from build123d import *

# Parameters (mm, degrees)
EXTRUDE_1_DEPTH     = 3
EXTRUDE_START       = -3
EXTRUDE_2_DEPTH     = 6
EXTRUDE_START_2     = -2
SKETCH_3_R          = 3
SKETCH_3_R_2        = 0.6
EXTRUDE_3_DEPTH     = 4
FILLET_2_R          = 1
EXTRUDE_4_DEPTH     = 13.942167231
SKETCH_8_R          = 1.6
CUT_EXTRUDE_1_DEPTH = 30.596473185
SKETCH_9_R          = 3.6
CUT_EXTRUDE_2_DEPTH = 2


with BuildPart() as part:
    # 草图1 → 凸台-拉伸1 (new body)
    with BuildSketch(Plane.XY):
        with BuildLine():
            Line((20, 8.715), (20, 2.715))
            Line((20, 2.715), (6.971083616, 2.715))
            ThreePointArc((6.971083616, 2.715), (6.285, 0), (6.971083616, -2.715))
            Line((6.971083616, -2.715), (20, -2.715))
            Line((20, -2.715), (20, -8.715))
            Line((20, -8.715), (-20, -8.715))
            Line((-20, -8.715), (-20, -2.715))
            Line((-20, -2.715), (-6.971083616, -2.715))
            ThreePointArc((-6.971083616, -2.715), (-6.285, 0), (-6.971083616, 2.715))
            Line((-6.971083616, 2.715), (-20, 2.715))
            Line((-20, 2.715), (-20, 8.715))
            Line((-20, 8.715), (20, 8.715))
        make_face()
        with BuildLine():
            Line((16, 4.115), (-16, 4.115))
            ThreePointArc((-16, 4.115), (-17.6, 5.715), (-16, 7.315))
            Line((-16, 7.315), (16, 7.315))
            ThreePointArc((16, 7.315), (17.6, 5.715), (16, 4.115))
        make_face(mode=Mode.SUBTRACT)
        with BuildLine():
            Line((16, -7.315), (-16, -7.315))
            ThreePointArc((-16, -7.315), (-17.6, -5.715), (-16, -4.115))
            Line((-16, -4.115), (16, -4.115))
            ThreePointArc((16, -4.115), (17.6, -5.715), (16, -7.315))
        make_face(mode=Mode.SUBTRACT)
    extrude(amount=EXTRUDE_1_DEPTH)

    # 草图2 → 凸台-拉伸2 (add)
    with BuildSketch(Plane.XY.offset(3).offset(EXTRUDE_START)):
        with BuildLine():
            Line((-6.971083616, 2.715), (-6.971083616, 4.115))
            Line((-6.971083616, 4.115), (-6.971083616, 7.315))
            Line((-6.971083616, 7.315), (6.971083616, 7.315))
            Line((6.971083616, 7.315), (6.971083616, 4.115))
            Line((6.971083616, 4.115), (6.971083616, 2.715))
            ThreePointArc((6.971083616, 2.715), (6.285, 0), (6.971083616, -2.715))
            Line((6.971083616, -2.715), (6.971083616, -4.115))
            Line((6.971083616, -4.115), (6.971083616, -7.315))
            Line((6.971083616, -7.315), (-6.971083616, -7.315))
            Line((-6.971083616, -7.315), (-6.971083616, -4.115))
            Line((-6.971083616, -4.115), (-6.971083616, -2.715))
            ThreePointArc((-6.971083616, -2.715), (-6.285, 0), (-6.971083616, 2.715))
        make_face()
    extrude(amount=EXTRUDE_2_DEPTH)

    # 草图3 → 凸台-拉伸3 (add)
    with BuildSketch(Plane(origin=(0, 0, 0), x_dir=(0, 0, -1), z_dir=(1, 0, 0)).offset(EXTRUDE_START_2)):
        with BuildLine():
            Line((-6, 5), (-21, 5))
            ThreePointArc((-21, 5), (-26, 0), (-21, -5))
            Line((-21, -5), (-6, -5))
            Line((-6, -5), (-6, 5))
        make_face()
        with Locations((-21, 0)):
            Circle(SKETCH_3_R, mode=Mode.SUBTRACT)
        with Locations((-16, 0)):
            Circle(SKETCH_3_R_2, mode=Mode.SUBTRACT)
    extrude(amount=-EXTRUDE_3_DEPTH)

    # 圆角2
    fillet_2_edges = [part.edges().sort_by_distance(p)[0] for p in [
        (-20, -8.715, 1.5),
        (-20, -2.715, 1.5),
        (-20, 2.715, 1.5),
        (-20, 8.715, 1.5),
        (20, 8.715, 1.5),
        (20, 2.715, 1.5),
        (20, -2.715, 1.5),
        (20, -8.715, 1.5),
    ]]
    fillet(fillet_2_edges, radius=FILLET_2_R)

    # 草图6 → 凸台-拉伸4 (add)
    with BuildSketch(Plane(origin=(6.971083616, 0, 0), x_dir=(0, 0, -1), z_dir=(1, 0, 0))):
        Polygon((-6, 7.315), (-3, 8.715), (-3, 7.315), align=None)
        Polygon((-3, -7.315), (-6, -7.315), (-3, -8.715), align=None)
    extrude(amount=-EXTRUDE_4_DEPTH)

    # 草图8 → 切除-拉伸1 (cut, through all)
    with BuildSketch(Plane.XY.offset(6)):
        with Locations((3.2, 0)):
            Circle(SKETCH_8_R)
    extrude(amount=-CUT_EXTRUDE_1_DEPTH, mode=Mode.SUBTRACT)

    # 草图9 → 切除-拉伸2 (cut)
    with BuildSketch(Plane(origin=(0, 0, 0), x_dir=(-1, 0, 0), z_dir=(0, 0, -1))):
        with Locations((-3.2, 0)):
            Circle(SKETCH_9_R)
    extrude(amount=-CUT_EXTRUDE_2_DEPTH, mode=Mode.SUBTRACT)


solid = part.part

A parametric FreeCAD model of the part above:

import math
import FreeCAD as App
import Part
import Sketcher
Q = App.Units.Quantity


def edges_at(feature, points):
    """Names of the edges that pass closest to the given points."""
    edges = feature.Shape.Edges
    near = lambda p: min(range(len(edges)), key=lambda i: edges[i].distToShape(Part.Vertex(*p))[0])
    return sorted({f"Edge{near(p) + 1}" for p in points})

doc = App.newDocument("Part")
body = doc.addObject("PartDesign::Body", "Body")

sketch1 = body.newObject("Sketcher::SketchObject", "Sketch")
sketch1.AttachmentSupport = (doc.getObject("XY_Plane"), [""])
sketch1.MapMode = "FlatFace"
sketch1.addGeometry([
    Part.LineSegment(App.Vector(20, 2.715, 0), App.Vector(20, 8.715, 0)),
    Part.LineSegment(App.Vector(20, 8.715, 0), App.Vector(-20, 8.715, 0)),
    Part.LineSegment(App.Vector(-20, 8.715, 0), App.Vector(-20, 2.715, 0)),
    Part.LineSegment(App.Vector(-20, 2.715, 0), App.Vector(-6.971084, 2.715, 0)),
    Part.ArcOfCircle(Part.Circle(App.Vector(-12, 0, 0), App.Vector(0, 0, 1), 5.715), math.radians(-28.363622), math.radians(28.363622)),
    Part.LineSegment(App.Vector(-6.971084, -2.715, 0), App.Vector(-20, -2.715, 0)),
    Part.LineSegment(App.Vector(-20, -2.715, 0), App.Vector(-20, -8.715, 0)),
    Part.LineSegment(App.Vector(-20, -8.715, 0), App.Vector(20, -8.715, 0)),
    Part.LineSegment(App.Vector(20, -8.715, 0), App.Vector(20, -2.715, 0)),
    Part.LineSegment(App.Vector(20, -2.715, 0), App.Vector(6.971084, -2.715, 0)),
    Part.ArcOfCircle(Part.Circle(App.Vector(12, 0, 0), App.Vector(0, 0, 1), 5.715), math.radians(151.636378), math.radians(208.363622)),
    Part.LineSegment(App.Vector(6.971084, 2.715, 0), App.Vector(20, 2.715, 0)),
    Part.LineSegment(App.Vector(16, -7.315, 0), App.Vector(-16, -7.315, 0)),
    Part.ArcOfCircle(Part.Circle(App.Vector(-16, -5.715, 0), App.Vector(0, 0, 1), 1.6), math.radians(90), math.radians(270)),
    Part.LineSegment(App.Vector(-16, -4.115, 0), App.Vector(16, -4.115, 0)),
    Part.ArcOfCircle(Part.Circle(App.Vector(16, -5.715, 0), App.Vector(0, 0, 1), 1.6), math.radians(-90), math.radians(90)),
    Part.LineSegment(App.Vector(16, 4.115, 0), App.Vector(-16, 4.115, 0)),
    Part.ArcOfCircle(Part.Circle(App.Vector(-16, 5.715, 0), App.Vector(0, 0, 1), 1.6), math.radians(90), math.radians(270)),
    Part.LineSegment(App.Vector(-16, 7.315, 0), App.Vector(16, 7.315, 0)),
    Part.ArcOfCircle(Part.Circle(App.Vector(16, 5.715, 0), App.Vector(0, 0, 1), 1.6), math.radians(-90), math.radians(90)),
], False)
sketch1.addConstraint([
    Sketcher.Constraint("Coincident", 0, 2, 1, 1),
    Sketcher.Constraint("Coincident", 1, 2, 2, 1),
    Sketcher.Constraint("Coincident", 2, 2, 3, 1),
    Sketcher.Constraint("Coincident", 3, 2, 4, 2),
    Sketcher.Constraint("Coincident", 4, 1, 5, 1),
    Sketcher.Constraint("Coincident", 5, 2, 6, 1),
    Sketcher.Constraint("Coincident", 6, 2, 7, 1),
    Sketcher.Constraint("Coincident", 7, 2, 8, 1),
    Sketcher.Constraint("Coincident", 8, 2, 9, 1),
    Sketcher.Constraint("Coincident", 9, 2, 10, 2),
    Sketcher.Constraint("Coincident", 10, 1, 11, 1),
    Sketcher.Constraint("Coincident", 11, 2, 0, 1),
    Sketcher.Constraint("Tangent", 12, 2, 13, 2),
    Sketcher.Constraint("Tangent", 13, 1, 14, 1),
    Sketcher.Constraint("Tangent", 14, 2, 15, 2),
    Sketcher.Constraint("Tangent", 15, 1, 12, 1),
    Sketcher.Constraint("Tangent", 16, 2, 17, 2),
    Sketcher.Constraint("Tangent", 17, 1, 18, 1),
    Sketcher.Constraint("Tangent", 18, 2, 19, 2),
    Sketcher.Constraint("Tangent", 19, 1, 16, 1),
    Sketcher.Constraint("Vertical", 0),
    Sketcher.Constraint("Horizontal", 1),
    Sketcher.Constraint("Vertical", 2),
    Sketcher.Constraint("Horizontal", 3),
    Sketcher.Constraint("Horizontal", 5),
    Sketcher.Constraint("Vertical", 6),
    Sketcher.Constraint("Horizontal", 7),
    Sketcher.Constraint("Vertical", 8),
    Sketcher.Constraint("Horizontal", 9),
    Sketcher.Constraint("Horizontal", 11),
    Sketcher.Constraint("Horizontal", 12),
    Sketcher.Constraint("Horizontal", 14),
    Sketcher.Constraint("Horizontal", 16),
    Sketcher.Constraint("Horizontal", 18),
    Sketcher.Constraint("Equal", 4, 10),
    Sketcher.Constraint("Equal", 15, 17),
    Sketcher.Constraint("Symmetric", 4, 3, 10, 3, -1, 1),
    Sketcher.Constraint("Symmetric", 15, 3, 17, 3, -1, 1),
    Sketcher.Constraint("Symmetric", 0, 2, 6, 2, -1, 1),
    Sketcher.Constraint("Symmetric", 2, 2, 8, 2, -1, 1),
    Sketcher.Constraint("Symmetric", 5, 2, 8, 2, -2),
    Sketcher.Constraint("Symmetric", 3, 2, 10, 1, -2),
    Sketcher.Constraint("Vertical", 13, 3, 17, 3),
    Sketcher.Constraint("Vertical", 15, 3, 19, 3),
    Sketcher.Constraint("Radius", 13, Q("1.6 mm")),
    Sketcher.Constraint("DistanceX", 1, 2, 1, 1, Q("40 mm")),
    Sketcher.Constraint("DistanceX", 12, 2, 12, 1, Q("32 mm")),
    Sketcher.Constraint("DistanceY", 0, 1, 0, 2, Q("6 mm")),
    Sketcher.Constraint("DistanceX", 4, 3, -1, 1, Q("12 mm")),
    Sketcher.Constraint("Radius", 4, Q("5.715 mm")),
    Sketcher.Constraint("DistanceY", 19, 3, 0, 2, Q("3 mm")),
    Sketcher.Constraint("DistanceY", 13, 3, 17, 3, Q("11.43 mm")),
])
pad1 = body.newObject("PartDesign::Pad", "Pad")
pad1.Profile = sketch1
pad1.Length = 3

sketch2 = body.newObject("Sketcher::SketchObject", "Sketch001")
sketch2.AttachmentSupport = (doc.getObject("XY_Plane"), [""])
sketch2.MapMode = "FlatFace"
sketch2.addGeometry([
    Part.LineSegment(App.Vector(-6.971084, 7.315, 0), App.Vector(-6.971084, 2.715, 0)),
    Part.ArcOfCircle(Part.Circle(App.Vector(-12, 0, 0), App.Vector(0, 0, 1), 5.715), math.radians(-28.363622), math.radians(28.363622)),
    Part.LineSegment(App.Vector(-6.971084, -2.715, 0), App.Vector(-6.971084, -7.315, 0)),
    Part.LineSegment(App.Vector(-6.971084, -7.315, 0), App.Vector(6.971084, -7.315, 0)),
    Part.LineSegment(App.Vector(6.971084, -7.315, 0), App.Vector(6.971084, -2.715, 0)),
    Part.ArcOfCircle(Part.Circle(App.Vector(12, 0, 0), App.Vector(0, 0, 1), 5.715), math.radians(151.636378), math.radians(208.363622)),
    Part.LineSegment(App.Vector(6.971084, 2.715, 0), App.Vector(6.971084, 7.315, 0)),
    Part.LineSegment(App.Vector(6.971084, 7.315, 0), App.Vector(-6.971084, 7.315, 0)),
], False)
sketch2.addConstraint([
    Sketcher.Constraint("Coincident", 0, 2, 1, 2),
    Sketcher.Constraint("Coincident", 1, 1, 2, 1),
    Sketcher.Constraint("Coincident", 2, 2, 3, 1),
    Sketcher.Constraint("Coincident", 3, 2, 4, 1),
    Sketcher.Constraint("Coincident", 4, 2, 5, 2),
    Sketcher.Constraint("Coincident", 5, 1, 6, 1),
    Sketcher.Constraint("Coincident", 6, 2, 7, 1),
    Sketcher.Constraint("Coincident", 7, 2, 0, 1),
    Sketcher.Constraint("Vertical", 0),
    Sketcher.Constraint("Vertical", 2),
    Sketcher.Constraint("Horizontal", 3),
    Sketcher.Constraint("Vertical", 4),
    Sketcher.Constraint("Vertical", 6),
    Sketcher.Constraint("Horizontal", 7),
    Sketcher.Constraint("Equal", 1, 5),
    Sketcher.Constraint("Symmetric", 1, 3, 5, 3, -1, 1),
    Sketcher.Constraint("Symmetric", 2, 2, 6, 2, -1, 1),
    Sketcher.Constraint("Symmetric", 1, 1, 4, 2, -2),
    Sketcher.Constraint("Horizontal", 0, 2, 5, 1),
    Sketcher.Constraint("DistanceY", 0, 2, 0, 1, Q("4.6 mm")),
    Sketcher.Constraint("DistanceX", 1, 3, -1, 1, Q("12 mm")),
    Sketcher.Constraint("Radius", 1, Q("5.715 mm")),
    Sketcher.Constraint("DistanceY", 1, 1, 0, 2, Q("5.43 mm")),
])
pad2 = body.newObject("PartDesign::Pad", "Pad001")
pad2.Profile = sketch2
pad2.Length = 6

sketch3 = body.newObject("Sketcher::SketchObject", "Sketch002")
sketch3.AttachmentSupport = (doc.getObject("YZ_Plane"), [""])
sketch3.MapMode = "FlatFace"
sketch3.AttachmentOffset = App.Placement(App.Vector(0, 0, -2), App.Rotation())
sketch3.addGeometry([
    Part.LineSegment(App.Vector(5, 6, 0), App.Vector(5, 21, 0)),
    Part.ArcOfCircle(Part.Circle(App.Vector(0, 21, 0), App.Vector(0, 0, 1), 5), math.radians(0), math.radians(180)),
    Part.LineSegment(App.Vector(-5, 21, 0), App.Vector(-5, 6, 0)),
    Part.LineSegment(App.Vector(-5, 6, 0), App.Vector(5, 6, 0)),
    Part.Circle(App.Vector(0, 21, 0), App.Vector(0, 0, 1), 3),
    Part.Circle(App.Vector(0, 16, 0), App.Vector(0, 0, 1), 0.6),
], False)
sketch3.addConstraint([
    Sketcher.Constraint("Tangent", 0, 2, 1, 1),
    Sketcher.Constraint("Tangent", 1, 2, 2, 1),
    Sketcher.Constraint("Coincident", 2, 2, 3, 1),
    Sketcher.Constraint("Coincident", 3, 2, 0, 1),
    Sketcher.Constraint("Vertical", 0),
    Sketcher.Constraint("Vertical", 2),
    Sketcher.Constraint("Horizontal", 3),
    Sketcher.Constraint("Coincident", 4, 3, 1, 3),
    Sketcher.Constraint("PointOnObject", 1, 3, -2),
    Sketcher.Constraint("PointOnObject", 5, 3, -2),
    Sketcher.Constraint("Diameter", 4, Q("6 mm")),
    Sketcher.Constraint("Radius", 1, Q("5 mm")),
    Sketcher.Constraint("Diameter", 5, Q("1.2 mm")),
    Sketcher.Constraint("DistanceY", 0, 1, 0, 2, Q("15 mm")),
    Sketcher.Constraint("DistanceY", -1, 1, 1, 3, Q("21 mm")),
    Sketcher.Constraint("DistanceY", -1, 1, 5, 3, Q("16 mm")),
])
pad3 = body.newObject("PartDesign::Pad", "Pad002")
pad3.Profile = sketch3
pad3.Length = 4
pad3.Reversed = True
doc.recompute()

fillet = body.newObject("PartDesign::Fillet", "Fillet")
fillet.Base = (pad3, edges_at(pad3, [
    (-20, -8.715, 1.5),
    (-20, -2.715, 1.5),
    (-20, 2.715, 1.5),
    (-20, 8.715, 1.5),
    (20, 8.715, 1.5),
    (20, 2.715, 1.5),
    (20, -2.715, 1.5),
    (20, -8.715, 1.5),
]))
fillet.Radius = 1

sketch4 = body.newObject("Sketcher::SketchObject", "Sketch003")
sketch4.AttachmentSupport = (doc.getObject("YZ_Plane"), [""])
sketch4.MapMode = "FlatFace"
sketch4.AttachmentOffset = App.Placement(App.Vector(0, 0, 6.971084), App.Rotation())
sketch4.addGeometry([
    Part.LineSegment(App.Vector(8.715, 3, 0), App.Vector(7.315, 6, 0)),
    Part.LineSegment(App.Vector(7.315, 6, 0), App.Vector(7.315, 3, 0)),
    Part.LineSegment(App.Vector(7.315, 3, 0), App.Vector(8.715, 3, 0)),
    Part.LineSegment(App.Vector(-7.315, 3, 0), App.Vector(-7.315, 6, 0)),
    Part.LineSegment(App.Vector(-7.315, 6, 0), App.Vector(-8.715, 3, 0)),
    Part.LineSegment(App.Vector(-8.715, 3, 0), App.Vector(-7.315, 3, 0)),
], False)
sketch4.addConstraint([
    Sketcher.Constraint("Coincident", 0, 2, 1, 1),
    Sketcher.Constraint("Coincident", 1, 2, 2, 1),
    Sketcher.Constraint("Coincident", 2, 2, 0, 1),
    Sketcher.Constraint("Coincident", 3, 2, 4, 1),
    Sketcher.Constraint("Coincident", 4, 2, 5, 1),
    Sketcher.Constraint("Coincident", 5, 2, 3, 1),
    Sketcher.Constraint("Vertical", 1),
    Sketcher.Constraint("Horizontal", 2),
    Sketcher.Constraint("Vertical", 3),
    Sketcher.Constraint("Horizontal", 5),
    Sketcher.Constraint("Symmetric", 0, 2, 3, 2, -2),
    Sketcher.Constraint("Symmetric", 2, 2, 4, 2, -2),
    Sketcher.Constraint("DistanceY", 1, 2, 1, 1, Q("3 mm")),
    Sketcher.Constraint("DistanceX", 2, 1, 2, 2, Q("1.4 mm")),
    Sketcher.Constraint("DistanceY", -1, 1, 0, 2, Q("6 mm")),
    Sketcher.Constraint("DistanceX", 3, 2, 0, 2, Q("14.63 mm")),
])
pad4 = body.newObject("PartDesign::Pad", "Pad003")
pad4.Profile = sketch4
pad4.Length = 13.942167
pad4.Reversed = True

sketch5 = body.newObject("Sketcher::SketchObject", "Sketch004")
sketch5.AttachmentSupport = (doc.getObject("XY_Plane"), [""])
sketch5.MapMode = "FlatFace"
sketch5.AttachmentOffset = App.Placement(App.Vector(0, 0, 6), App.Rotation())
sketch5.addGeometry(Part.Circle(App.Vector(3.2, 0, 0), App.Vector(0, 0, 1), 1.6), False)
sketch5.addConstraint([
    Sketcher.Constraint("PointOnObject", 0, 3, -1),
    Sketcher.Constraint("Diameter", 0, Q("3.2 mm")),
    Sketcher.Constraint("DistanceX", -1, 1, 0, 3, Q("3.2 mm")),
])
pocket1 = body.newObject("PartDesign::Pocket", "Pocket")
pocket1.Profile = sketch5
pocket1.Type = "ThroughAll"

sketch6 = body.newObject("Sketcher::SketchObject", "Sketch005")
sketch6.AttachmentSupport = (doc.getObject("XY_Plane"), [""])
sketch6.MapMode = "FlatFace"
sketch6.addGeometry(Part.Circle(App.Vector(3.2, 0, 0), App.Vector(0, 0, 1), 3.6), False)
sketch6.addConstraint([
    Sketcher.Constraint("PointOnObject", 0, 3, -1),
    Sketcher.Constraint("Diameter", 0, Q("7.2 mm")),
    Sketcher.Constraint("DistanceX", -1, 1, 0, 3, Q("3.2 mm")),
])
pocket2 = body.newObject("PartDesign::Pocket", "Pocket001")
pocket2.Profile = sketch6
pocket2.Length = 2
pocket2.Reversed = True

doc.recompute()
